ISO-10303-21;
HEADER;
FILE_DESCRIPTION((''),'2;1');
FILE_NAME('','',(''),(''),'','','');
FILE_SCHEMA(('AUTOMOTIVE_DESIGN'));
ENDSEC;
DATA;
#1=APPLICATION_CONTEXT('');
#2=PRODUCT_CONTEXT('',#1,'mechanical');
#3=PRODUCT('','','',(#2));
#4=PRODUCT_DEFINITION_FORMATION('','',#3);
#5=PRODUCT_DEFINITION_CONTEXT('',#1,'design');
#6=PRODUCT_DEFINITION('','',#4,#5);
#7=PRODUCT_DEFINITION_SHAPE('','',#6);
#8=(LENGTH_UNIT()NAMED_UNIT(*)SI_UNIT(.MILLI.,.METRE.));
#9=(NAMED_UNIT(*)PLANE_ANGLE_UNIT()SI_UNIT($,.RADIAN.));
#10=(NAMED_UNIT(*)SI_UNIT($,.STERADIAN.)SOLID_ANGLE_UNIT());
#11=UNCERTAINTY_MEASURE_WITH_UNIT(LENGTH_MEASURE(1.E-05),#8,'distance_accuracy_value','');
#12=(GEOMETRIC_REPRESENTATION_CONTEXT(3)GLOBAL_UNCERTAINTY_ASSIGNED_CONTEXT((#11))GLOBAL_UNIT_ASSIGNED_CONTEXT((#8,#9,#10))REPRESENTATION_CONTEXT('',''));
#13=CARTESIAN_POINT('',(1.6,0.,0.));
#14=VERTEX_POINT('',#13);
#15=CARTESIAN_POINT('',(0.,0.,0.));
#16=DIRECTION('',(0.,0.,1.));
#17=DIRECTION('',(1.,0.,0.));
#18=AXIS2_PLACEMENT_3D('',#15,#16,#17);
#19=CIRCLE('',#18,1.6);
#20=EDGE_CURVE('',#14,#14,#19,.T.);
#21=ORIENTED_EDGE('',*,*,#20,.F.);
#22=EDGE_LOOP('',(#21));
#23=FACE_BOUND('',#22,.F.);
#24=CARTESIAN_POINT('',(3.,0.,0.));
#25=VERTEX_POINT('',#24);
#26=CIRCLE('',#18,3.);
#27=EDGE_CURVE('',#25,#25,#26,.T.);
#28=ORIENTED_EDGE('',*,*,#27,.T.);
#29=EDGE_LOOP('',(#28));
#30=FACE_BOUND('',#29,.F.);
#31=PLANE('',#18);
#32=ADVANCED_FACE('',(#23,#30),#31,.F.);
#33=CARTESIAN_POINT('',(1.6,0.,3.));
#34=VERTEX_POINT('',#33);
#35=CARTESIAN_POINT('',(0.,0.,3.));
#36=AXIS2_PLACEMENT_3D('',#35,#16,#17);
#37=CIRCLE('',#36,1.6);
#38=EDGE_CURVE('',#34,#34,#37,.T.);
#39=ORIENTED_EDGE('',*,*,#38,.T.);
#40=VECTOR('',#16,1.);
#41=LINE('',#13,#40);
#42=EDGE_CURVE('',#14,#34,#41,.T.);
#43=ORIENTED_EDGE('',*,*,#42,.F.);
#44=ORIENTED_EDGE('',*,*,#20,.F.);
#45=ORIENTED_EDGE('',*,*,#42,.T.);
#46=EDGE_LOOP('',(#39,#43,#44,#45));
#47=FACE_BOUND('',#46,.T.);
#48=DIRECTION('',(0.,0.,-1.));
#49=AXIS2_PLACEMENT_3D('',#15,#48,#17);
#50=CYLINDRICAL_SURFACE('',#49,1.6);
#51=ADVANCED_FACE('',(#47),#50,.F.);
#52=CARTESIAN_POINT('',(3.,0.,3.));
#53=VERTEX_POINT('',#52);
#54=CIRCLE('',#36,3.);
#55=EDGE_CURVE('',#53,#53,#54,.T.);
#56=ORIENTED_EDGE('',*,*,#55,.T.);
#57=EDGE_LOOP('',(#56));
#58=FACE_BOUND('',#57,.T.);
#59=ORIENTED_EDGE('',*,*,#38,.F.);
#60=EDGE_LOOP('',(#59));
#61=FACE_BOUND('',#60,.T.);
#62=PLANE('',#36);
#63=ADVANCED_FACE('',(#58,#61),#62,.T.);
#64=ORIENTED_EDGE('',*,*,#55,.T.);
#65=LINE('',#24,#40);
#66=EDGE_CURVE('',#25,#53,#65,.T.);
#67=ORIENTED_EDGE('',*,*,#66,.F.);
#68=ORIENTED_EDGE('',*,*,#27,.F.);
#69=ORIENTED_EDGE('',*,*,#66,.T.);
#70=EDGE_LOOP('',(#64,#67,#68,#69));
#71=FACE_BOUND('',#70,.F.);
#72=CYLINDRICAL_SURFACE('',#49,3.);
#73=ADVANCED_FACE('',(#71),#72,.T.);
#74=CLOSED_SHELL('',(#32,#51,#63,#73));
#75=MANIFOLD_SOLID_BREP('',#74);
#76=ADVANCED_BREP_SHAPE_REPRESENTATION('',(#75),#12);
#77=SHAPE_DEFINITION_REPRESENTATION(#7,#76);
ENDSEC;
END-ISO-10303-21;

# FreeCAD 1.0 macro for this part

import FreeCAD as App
import Part
import Sketcher
Q = App.Units.Quantity

doc = App.newDocument("Part")
body = doc.addObject("PartDesign::Body", "Body")

sketch1 = body.newObject("Sketcher::SketchObject", "Sketch")
sketch1.AttachmentSupport = (doc.getObject("XY_Plane"), [""])
sketch1.MapMode = "FlatFace"
sketch1.addGeometry(Part.Circle(App.Vector(0, 0, 0), App.Vector(0, 0, 1), 3), False)
sketch1.addGeometry(Part.Circle(App.Vector(0, 0, 0), App.Vector(0, 0, 1), 1.6), False)
sketch1.addConstraint(Sketcher.Constraint("Coincident", 0, 3, -1, 1))
sketch1.addConstraint(Sketcher.Constraint("Coincident", 1, 3, -1, 1))
sketch1.addConstraint(Sketcher.Constraint("Diameter", 0, Q("6 mm")))
sketch1.addConstraint(Sketcher.Constraint("Diameter", 1, Q("3.2 mm")))
pad1 = body.newObject("PartDesign::Pad", "Pad")
pad1.Profile = sketch1
pad1.Length = 3

doc.recompute()
